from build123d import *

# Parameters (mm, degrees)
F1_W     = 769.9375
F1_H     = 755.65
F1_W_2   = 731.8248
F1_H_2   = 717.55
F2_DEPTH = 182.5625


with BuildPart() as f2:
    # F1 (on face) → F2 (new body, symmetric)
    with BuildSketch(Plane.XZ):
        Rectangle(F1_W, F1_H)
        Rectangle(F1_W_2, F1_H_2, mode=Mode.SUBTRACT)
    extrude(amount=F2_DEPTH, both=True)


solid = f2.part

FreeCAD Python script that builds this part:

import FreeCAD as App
import Part
import Sketcher
Q = App.Units.Quantity

doc = App.newDocument("Part")
body = doc.addObject("PartDesign::Body", "Body")

# Sketch on XZ plane
sketch1 = body.newObject("Sketcher::SketchObject", "Sketch")
sketch1.AttachmentSupport = (doc.getObject("XZ_Plane"), [""])
sketch1.MapMode = "FlatFace"
sketch1.addGeometry([
    Part.LineSegment(App.Vector(-385, 378, 0), App.Vector(-385, -378, 0)),  # 0
    Part.LineSegment(App.Vector(-385, -378, 0), App.Vector(385, -378, 0)),  # 1
    Part.LineSegment(App.Vector(385, -378, 0), App.Vector(385, 378, 0)),  # 2
    Part.LineSegment(App.Vector(385, 378, 0), App.Vector(-385, 378, 0)),  # 3
    Part.LineSegment(App.Vector(366, -359, 0), App.Vector(-366, -359, 0)),  # 4
    Part.LineSegment(App.Vector(-366, -359, 0), App.Vector(-366, 359, 0)),  # 5
    Part.LineSegment(App.Vector(-366, 359, 0), App.Vector(366, 359, 0)),  # 6
    Part.LineSegment(App.Vector(366, 359, 0), App.Vector(366, -359, 0)),  # 7
], False)
sketch1.addConstraint([
    Sketcher.Constraint("Coincident", 0, 2, 1, 1),
    Sketcher.Constraint("Coincident", 1, 2, 2, 1),
    Sketcher.Constraint("Coincident", 2, 2, 3, 1),
    Sketcher.Constraint("Coincident", 3, 2, 0, 1),
    Sketcher.Constraint("Coincident", 4, 2, 5, 1),
    Sketcher.Constraint("Coincident", 5, 2, 6, 1),
    Sketcher.Constraint("Coincident", 6, 2, 7, 1),
    Sketcher.Constraint("Coincident", 7, 2, 4, 1),
    Sketcher.Constraint("Vertical", 0),
    Sketcher.Constraint("Horizontal", 1),
    Sketcher.Constraint("Vertical", 2),
    Sketcher.Constraint("Horizontal", 3),
    Sketcher.Constraint("Horizontal", 4),
    Sketcher.Constraint("Vertical", 5),
    Sketcher.Constraint("Horizontal", 6),
    Sketcher.Constraint("Vertical", 7),
    Sketcher.Constraint("Symmetric", 0, 2, 2, 2, -1, 1),
    Sketcher.Constraint("Symmetric", 4, 2, 6, 2, -1, 1),
    Sketcher.Constraint("DistanceY", 4, 2, 3, 2, Q("29 in")),
    Sketcher.Constraint("DistanceY", 0, 2, 0, 1, Q("29.75 in")),
    Sketcher.Constraint("DistanceX", 1, 1, 1, 2, Q("30.3125 in")),
    Sketcher.Constraint("DistanceX", 4, 2, 4, 1, Q("28.812 in")),
])
pad1 = body.newObject("PartDesign::Pad", "Pad")
pad1.Profile = sketch1
pad1.Length = Q("14.375 in")
pad1.Midplane = True

doc.recompute()
